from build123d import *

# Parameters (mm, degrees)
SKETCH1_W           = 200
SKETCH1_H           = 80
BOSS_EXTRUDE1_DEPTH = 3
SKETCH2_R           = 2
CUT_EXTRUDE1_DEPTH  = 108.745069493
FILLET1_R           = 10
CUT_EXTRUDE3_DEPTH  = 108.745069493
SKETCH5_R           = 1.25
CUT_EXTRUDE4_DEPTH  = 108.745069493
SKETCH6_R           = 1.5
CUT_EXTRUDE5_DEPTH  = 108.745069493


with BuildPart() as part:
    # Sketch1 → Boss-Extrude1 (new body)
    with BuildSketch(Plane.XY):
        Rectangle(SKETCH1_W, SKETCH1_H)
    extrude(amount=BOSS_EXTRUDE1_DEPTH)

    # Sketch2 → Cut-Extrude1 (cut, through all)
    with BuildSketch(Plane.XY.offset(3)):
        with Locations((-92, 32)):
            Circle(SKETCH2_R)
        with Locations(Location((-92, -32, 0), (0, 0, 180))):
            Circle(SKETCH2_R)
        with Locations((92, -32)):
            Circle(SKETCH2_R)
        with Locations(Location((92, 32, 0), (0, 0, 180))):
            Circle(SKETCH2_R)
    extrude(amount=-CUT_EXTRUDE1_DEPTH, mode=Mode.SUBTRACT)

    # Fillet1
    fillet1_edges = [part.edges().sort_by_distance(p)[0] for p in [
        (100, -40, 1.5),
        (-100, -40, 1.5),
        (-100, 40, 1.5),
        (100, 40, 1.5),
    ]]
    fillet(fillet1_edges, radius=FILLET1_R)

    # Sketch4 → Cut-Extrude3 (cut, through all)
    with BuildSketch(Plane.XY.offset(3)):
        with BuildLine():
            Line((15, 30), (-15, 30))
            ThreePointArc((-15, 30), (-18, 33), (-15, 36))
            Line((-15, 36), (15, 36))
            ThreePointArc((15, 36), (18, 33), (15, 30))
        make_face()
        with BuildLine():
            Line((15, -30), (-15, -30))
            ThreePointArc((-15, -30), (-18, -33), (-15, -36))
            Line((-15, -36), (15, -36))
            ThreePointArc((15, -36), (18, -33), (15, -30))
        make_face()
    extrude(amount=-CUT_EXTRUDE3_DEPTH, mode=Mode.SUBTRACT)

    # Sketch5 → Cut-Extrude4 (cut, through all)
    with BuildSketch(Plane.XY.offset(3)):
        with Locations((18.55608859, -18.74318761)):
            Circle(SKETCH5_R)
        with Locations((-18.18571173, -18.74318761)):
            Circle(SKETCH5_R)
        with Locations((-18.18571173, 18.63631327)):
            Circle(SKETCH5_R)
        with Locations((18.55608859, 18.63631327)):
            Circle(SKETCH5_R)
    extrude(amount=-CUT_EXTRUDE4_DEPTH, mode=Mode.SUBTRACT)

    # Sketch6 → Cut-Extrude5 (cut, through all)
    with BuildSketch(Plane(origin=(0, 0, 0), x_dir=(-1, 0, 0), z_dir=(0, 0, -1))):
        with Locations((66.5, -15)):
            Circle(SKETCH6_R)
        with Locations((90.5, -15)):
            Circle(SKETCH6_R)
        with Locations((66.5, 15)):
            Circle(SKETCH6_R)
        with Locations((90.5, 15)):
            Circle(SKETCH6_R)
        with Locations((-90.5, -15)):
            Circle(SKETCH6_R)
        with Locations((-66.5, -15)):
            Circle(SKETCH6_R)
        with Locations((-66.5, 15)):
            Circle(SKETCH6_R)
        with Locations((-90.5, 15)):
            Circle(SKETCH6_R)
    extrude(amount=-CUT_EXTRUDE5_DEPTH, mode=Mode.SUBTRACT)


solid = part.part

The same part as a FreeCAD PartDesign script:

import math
import FreeCAD as App
import Part
import Sketcher

V = App.Vector


def edges_at(feature, points):
    """Names of the edges that pass closest to the given points."""
    edges = feature.Shape.Edges
    near = lambda p: min(range(len(edges)), key=lambda i: edges[i].distToShape(Part.Vertex(*p))[0])
    return sorted({f"Edge{near(p) + 1}" for p in points})


def add_polygon(sketch, points):
    """Adds a closed chain of lines whose ends are joined by coincident constraints."""
    first, n = sketch.GeometryCount, len(points)
    for a, b in zip(points, points[1:] + points[:1]):
        sketch.addGeometry(Part.LineSegment(App.Vector(*a, 0), App.Vector(*b, 0)), False)
    for i in range(n):
        sketch.addConstraint(Sketcher.Constraint("Coincident", first + i, 2, first + (i + 1) % n, 1))

doc = App.newDocument("Part")
params = doc.addObject("Spreadsheet::Sheet", "Params")
for row, (alias, value) in enumerate([
    ("sketch1_width", "200 mm"),
    ("sketch1_height", "80 mm"),
    ("pad1_length", "3 mm"),
    ("sketch2_diameter", "4 mm"),
    ("fillet_radius", "10 mm"),
    ("sketch3_radius", "3 mm"),
    ("sketch3_width", "30 mm"),
    ("sketch4_diameter", "2.5 mm"),
    ("sketch5_diameter", "3 mm"),
], start=1):
    params.set(f"A{row}", alias)
    params.set(f"B{row}", "=" + value)
    params.setAlias(f"B{row}", alias)

body = doc.addObject("PartDesign::Body", "Body")

sketch1 = doc.addObject("Sketcher::SketchObject", "Sketch")
body.addObject(sketch1)
sketch1.AttachmentSupport = (doc.XY_Plane, [""])
sketch1.MapMode = "FlatFace"
add_polygon(sketch1, [(-100, 40), (-100, -40), (100, -40), (100, 40)])
sketch1.addConstraint([
    Sketcher.Constraint("Vertical", 0),
    Sketcher.Constraint("Horizontal", 1),
    Sketcher.Constraint("Vertical", 2),
    Sketcher.Constraint("Horizontal", 3),
    Sketcher.Constraint("Symmetric", 0, 2, 2, 2, -1, 1),
    Sketcher.Constraint("DistanceX", 1, 1, 1, 2, 200.0),
    Sketcher.Constraint("DistanceY", 0, 2, 0, 1, 80.0),
])
sketch1.setExpression("Constraints[9]", "Params.sketch1_width")
sketch1.setExpression("Constraints[10]", "Params.sketch1_height")
pad1 = doc.addObject("PartDesign::Pad", "Pad")
body.addObject(pad1)
pad1.Profile = sketch1
pad1.setExpression("Length", "Params.pad1_length")

sketch2 = doc.addObject("Sketcher::SketchObject", "Sketch001")
body.addObject(sketch2)
sketch2.AttachmentSupport = (doc.XY_Plane, [""])
sketch2.MapMode = "FlatFace"
sketch2.AttachmentOffset = App.Placement(V(0, 0, 3), App.Rotation())
sketch2.addGeometry([
    Part.Circle(V(-92, 32, 0), V(0, 0, 1), 2),
    Part.Circle(V(-92, -32, 0), V(0, 0, 1), 2),
    Part.Circle(V(92, -32, 0), V(0, 0, 1), 2),
    Part.Circle(V(92, 32, 0), V(0, 0, 1), 2),
], False)
sketch2.addConstraint([
    Sketcher.Constraint("Equal", 0, 1),
    Sketcher.Constraint("Equal", 1, 2),
    Sketcher.Constraint("Equal", 2, 3),
    Sketcher.Constraint("Symmetric", 0, 3, 2, 3, -1, 1),
    Sketcher.Constraint("Symmetric", 1, 3, 3, 3, -1, 1),
    Sketcher.Constraint("Symmetric", 1, 3, 2, 3, -2),
    Sketcher.Constraint("Diameter", 0, 4.0),
    Sketcher.Constraint("DistanceX", 0, 3, -1, 1, 92.0),
    Sketcher.Constraint("DistanceY", -1, 1, 0, 3, 32.0),
])
sketch2.setExpression("Constraints[6]", "Params.sketch2_diameter")
pocket1 = doc.addObject("PartDesign::Pocket", "Pocket")
body.addObject(pocket1)
pocket1.Profile = sketch2
pocket1.Type = "ThroughAll"
doc.recompute()

fillet = doc.addObject("PartDesign::Fillet", "Fillet")
body.addObject(fillet)
fillet.Base = (pocket1, edges_at(pocket1, [
    (100, -40, 1.5),
    (-100, -40, 1.5),
    (-100, 40, 1.5),
    (100, 40, 1.5),
]))
fillet.setExpression("Radius", "Params.fillet_radius")

sketch3 = doc.addObject("Sketcher::SketchObject", "Sketch002")
body.addObject(sketch3)
sketch3.AttachmentSupport = (doc.XY_Plane, [""])
sketch3.MapMode = "FlatFace"
sketch3.AttachmentOffset = App.Placement(V(0, 0, 3), App.Rotation())
sketch3.addGeometry([
    Part.LineSegment(V(-15, 30, 0), V(15, 30, 0)),
    Part.ArcOfCircle(Part.Circle(V(15, 33, 0), V(0, 0, 1), 3), math.radians(-90), math.radians(90)),
    Part.LineSegment(V(15, 36, 0), V(-15, 36, 0)),
    Part.ArcOfCircle(Part.Circle(V(-15, 33, 0), V(0, 0, 1), 3), math.radians(90), math.radians(270)),
    Part.LineSegment(V(15, -30, 0), V(-15, -30, 0)),
    Part.ArcOfCircle(Part.Circle(V(-15, -33, 0), V(0, 0, 1), 3), math.radians(90), math.radians(270)),
    Part.LineSegment(V(-15, -36, 0), V(15, -36, 0)),
    Part.ArcOfCircle(Part.Circle(V(15, -33, 0), V(0, 0, 1), 3), math.radians(-90), math.radians(90)),
], False)
sketch3.addConstraint([
    Sketcher.Constraint("Tangent", 0, 2, 1, 1),
    Sketcher.Constraint("Tangent", 1, 2, 2, 1),
    Sketcher.Constraint("Tangent", 2, 2, 3, 1),
    Sketcher.Constraint("Tangent", 3, 2, 0, 1),
    Sketcher.Constraint("Tangent", 4, 2, 5, 1),
    Sketcher.Constraint("Tangent", 5, 2, 6, 1),
    Sketcher.Constraint("Tangent", 6, 2, 7, 1),
    Sketcher.Constraint("Tangent", 7, 2, 4, 1),
    Sketcher.Constraint("Horizontal", 0),
    Sketcher.Constraint("Horizontal", 2),
    Sketcher.Constraint("Horizontal", 4),
    Sketcher.Constraint("Horizontal", 6),
    Sketcher.Constraint("Equal", 3, 5),
    Sketcher.Constraint("Symmetric", 1, 3, 5, 3, -1, 1),
    Sketcher.Constraint("Vertical", 3, 3, 5, 3),
    Sketcher.Constraint("Vertical", 1, 3, 7, 3),
    Sketcher.Constraint("Radius", 1, 3.0),
    Sketcher.Constraint("DistanceX", 0, 1, 0, 2, 30.0),
    Sketcher.Constraint("DistanceY", -1, 1, 1, 3, 33.0),
])
sketch3.setExpression("Constraints[16]", "Params.sketch3_radius")
sketch3.setExpression("Constraints[17]", "Params.sketch3_width")
pocket2 = doc.addObject("PartDesign::Pocket", "Pocket001")
body.addObject(pocket2)
pocket2.Profile = sketch3
pocket2.Type = "ThroughAll"

sketch4 = doc.addObject("Sketcher::SketchObject", "Sketch003")
body.addObject(sketch4)
sketch4.AttachmentSupport = (doc.XY_Plane, [""])
sketch4.MapMode = "FlatFace"
sketch4.AttachmentOffset = App.Placement(V(0, 0, 3), App.Rotation())
sketch4.addGeometry([
    Part.Circle(V(18.6, -18.7, 0), V(0, 0, 1), 1.2),
    Part.Circle(V(-18.2, -18.7, 0), V(0, 0, 1), 1.2),
    Part.Circle(V(-18.2, 18.6, 0), V(0, 0, 1), 1.2),
    Part.Circle(V(18.6, 18.6, 0), V(0, 0, 1), 1.2),
], False)
sketch4.addConstraint([
    Sketcher.Constraint("Equal", 0, 1),
    Sketcher.Constraint("Equal", 1, 2),
    Sketcher.Constraint("Equal", 2, 3),
    Sketcher.Constraint("Horizontal", 0, 3, 1, 3),
    Sketcher.Constraint("Horizontal", 2, 3, 3, 3),
    Sketcher.Constraint("Vertical", 1, 3, 2, 3),
    Sketcher.Constraint("Vertical", 0, 3, 3, 3),
    Sketcher.Constraint("Diameter", 0, 2.5),
    Sketcher.Constraint("DistanceX", 1, 3, 0, 3, 36.7418),
    Sketcher.Constraint("DistanceY", 1, 3, 2, 3, 37.379501),
    Sketcher.Constraint("DistanceX", -1, 1, 0, 3, 18.556089),
    Sketcher.Constraint("DistanceY", 0, 3, -1, 1, 18.743188),
])
sketch4.setExpression("Constraints[7]", "Params.sketch4_diameter")
pocket3 = doc.addObject("PartDesign::Pocket", "Pocket002")
body.addObject(pocket3)
pocket3.Profile = sketch4
pocket3.Type = "ThroughAll"

sketch5 = doc.addObject("Sketcher::SketchObject", "Sketch004")
body.addObject(sketch5)
sketch5.AttachmentSupport = (doc.XY_Plane, [""])
sketch5.MapMode = "FlatFace"
sketch5.addGeometry([
    Part.Circle(V(-66.5, -15, 0), V(0, 0, 1), 1.5),
    Part.Circle(V(-90.5, -15, 0), V(0, 0, 1), 1.5),
    Part.Circle(V(-66.5, 15, 0), V(0, 0, 1), 1.5),
    Part.Circle(V(-90.5, 15, 0), V(0, 0, 1), 1.5),
    Part.Circle(V(90.5, -15, 0), V(0, 0, 1), 1.5),
    Part.Circle(V(66.5, -15, 0), V(0, 0, 1), 1.5),
    Part.Circle(V(66.5, 15, 0), V(0, 0, 1), 1.5),
    Part.Circle(V(90.5, 15, 0), V(0, 0, 1), 1.5),
], False)
sketch5.addConstraint([
    Sketcher.Constraint("Equal", 0, 1),
    Sketcher.Constraint("Equal", 1, 2),
    Sketcher.Constraint("Equal", 2, 3),
    Sketcher.Constraint("Equal", 3, 4),
    Sketcher.Constraint("Equal", 4, 5),
    Sketcher.Constraint("Equal", 5, 6),
    Sketcher.Constraint("Equal", 6, 7),
    Sketcher.Constraint("Symmetric", 3, 3, 4, 3, -1, 1),
    Sketcher.Constraint("Symmetric", 2, 3, 5, 3, -1, 1),
    Sketcher.Constraint("Symmetric", 0, 3, 6, 3, -1, 1),
    Sketcher.Constraint("Symmetric", 1, 3, 7, 3, -1, 1),
    Sketcher.Constraint("Symmetric", 1, 3, 4, 3, -2),
    Sketcher.Constraint("Symmetric", 0, 3, 5, 3, -2),
    Sketcher.Constraint("Horizontal", 0, 3, 1, 3),
    Sketcher.Constraint("Diameter", 0, 3.0),
    Sketcher.Constraint("DistanceY", 0, 3, -1, 1, 15.0),
    Sketcher.Constraint("DistanceX", 1, 3, 0, 3, 24.0),
    Sketcher.Constraint("DistanceX", 0, 3, 4, 3, 157.0),
])
sketch5.setExpression("Constraints[14]", "Params.sketch5_diameter")
pocket4 = doc.addObject("PartDesign::Pocket", "Pocket003")
body.addObject(pocket4)
pocket4.Profile = sketch5
pocket4.Type = "ThroughAll"
pocket4.Reversed = True

doc.recompute()
